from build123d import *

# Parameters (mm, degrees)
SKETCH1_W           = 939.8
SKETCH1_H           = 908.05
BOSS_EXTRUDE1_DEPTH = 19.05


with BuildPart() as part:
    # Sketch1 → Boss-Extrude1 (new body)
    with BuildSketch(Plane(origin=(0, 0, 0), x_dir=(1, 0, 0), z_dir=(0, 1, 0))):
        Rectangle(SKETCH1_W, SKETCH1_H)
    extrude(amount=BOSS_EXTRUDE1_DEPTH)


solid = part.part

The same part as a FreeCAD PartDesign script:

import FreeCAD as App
import Part
import Sketcher

V = App.Vector
Q = App.Units.Quantity


def add_polygon(sketch, points):
    """Adds a closed chain of lines whose ends are joined by coincident constraints."""
    first, n = sketch.GeometryCount, len(points)
    for a, b in zip(points, points[1:] + points[:1]):
        sketch.addGeometry(Part.LineSegment(App.Vector(*a, 0), App.Vector(*b, 0)), False)
    for i in range(n):
        sketch.addConstraint(Sketcher.Constraint("Coincident", first + i, 2, first + (i + 1) % n, 1))

doc = App.newDocument("Part")
body = doc.addObject("PartDesign::Body", "Body")

# Sketch on XZ plane
sketch1 = body.newObject("Sketcher::SketchObject", "Sketch")
sketch1.AttachmentSupport = (doc.getObject("XZ_Plane"), [""])
sketch1.MapMode = "FlatFace"
add_polygon(sketch1, [(-470, -454), (-470, 454), (470, 454), (470, -454)])  # lines 0-3
sketch1.addConstraint(Sketcher.Constraint("Vertical", 0))
sketch1.addConstraint(Sketcher.Constraint("Horizontal", 1))
sketch1.addConstraint(Sketcher.Constraint("Vertical", 2))
sketch1.addConstraint(Sketcher.Constraint("Horizontal", 3))
sketch1.addConstraint(Sketcher.Constraint("Symmetric", 0, 2, 2, 2, -1, 1))
sketch1.addConstraint(Sketcher.Constraint("DistanceX", 1, 1, 1, 2, Q("37 in")))
sketch1.addConstraint(Sketcher.Constraint("DistanceY", 0, 1, 0, 2, Q("35.75 in")))
pad1 = body.newObject("PartDesign::Pad", "Pad")
pad1.Profile = sketch1
pad1.Length = Q("0.75 in")
pad1.Reversed = True

doc.recompute()
